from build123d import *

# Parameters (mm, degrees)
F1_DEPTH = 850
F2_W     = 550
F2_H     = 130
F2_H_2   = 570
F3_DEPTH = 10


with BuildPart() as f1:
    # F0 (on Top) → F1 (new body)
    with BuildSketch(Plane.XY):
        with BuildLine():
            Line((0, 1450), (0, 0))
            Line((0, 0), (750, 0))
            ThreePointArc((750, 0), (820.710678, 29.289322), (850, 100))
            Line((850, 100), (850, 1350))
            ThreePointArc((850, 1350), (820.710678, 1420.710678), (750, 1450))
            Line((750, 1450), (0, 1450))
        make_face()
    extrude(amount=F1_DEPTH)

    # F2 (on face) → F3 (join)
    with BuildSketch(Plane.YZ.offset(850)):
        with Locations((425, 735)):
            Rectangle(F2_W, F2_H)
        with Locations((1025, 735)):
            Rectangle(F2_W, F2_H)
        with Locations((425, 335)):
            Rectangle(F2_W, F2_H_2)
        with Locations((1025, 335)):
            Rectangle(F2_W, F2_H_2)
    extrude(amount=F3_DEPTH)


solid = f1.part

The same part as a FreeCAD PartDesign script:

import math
import FreeCAD as App
import Part
import Sketcher

V = App.Vector
Q = App.Units.Quantity

doc = App.newDocument("Part")
params = doc.addObject("Spreadsheet::Sheet", "Params")
for row, (alias, value) in enumerate([
    ("sketch1_radius", "100 mm"),
    ("sketch1_width", "750 mm"),
    ("sketch1_height", "1450 mm"),
    ("pad1_length", "850 mm"),
    ("sketch2_width", "550 mm"),
    ("sketch2_height", "130 mm"),
    ("sketch2_height2", "570 mm"),
    ("pad2_length", "10 mm"),
], start=1):
    params.set(f"A{row}", alias)
    params.set(f"B{row}", "=" + value)
    params.setAlias(f"B{row}", alias)

body = doc.addObject("PartDesign::Body", "Body")

# Sketch on XY plane
sketch1 = body.newObject("Sketcher::SketchObject", "Sketch")
sketch1.AttachmentSupport = (doc.getObject("XY_Plane"), [""])
sketch1.MapMode = "FlatFace"
sketch1.addGeometry(Part.LineSegment(V(0, 1450, 0), V(0, 0, 0)), False)
sketch1.addGeometry(Part.LineSegment(V(0, 0, 0), V(750, 0, 0)), False)
sketch1.addGeometry(Part.ArcOfCircle(Part.Circle(V(750, 100, 0), V(0, 0, 1), 100), math.radians(-90), math.radians(0)), False)
sketch1.addGeometry(Part.LineSegment(V(850, 100, 0), V(850, 1350, 0)), False)
sketch1.addGeometry(Part.ArcOfCircle(Part.Circle(V(750, 1350, 0), V(0, 0, 1), 100), math.radians(0), math.radians(90)), False)
sketch1.addGeometry(Part.LineSegment(V(750, 1450, 0), V(0, 1450, 0)), False)
sketch1.addConstraint(Sketcher.Constraint("Coincident", 0, 2, 1, 1))
sketch1.addConstraint(Sketcher.Constraint("Tangent", 1, 2, 2, 1))
sketch1.addConstraint(Sketcher.Constraint("Tangent", 2, 2, 3, 1))
sketch1.addConstraint(Sketcher.Constraint("Tangent", 3, 2, 4, 1))
sketch1.addConstraint(Sketcher.Constraint("Tangent", 4, 2, 5, 1))
sketch1.addConstraint(Sketcher.Constraint("Coincident", 5, 2, 0, 1))
sketch1.addConstraint(Sketcher.Constraint("Vertical", 0))
sketch1.addConstraint(Sketcher.Constraint("Horizontal", 1))
sketch1.addConstraint(Sketcher.Constraint("Vertical", 3))
sketch1.addConstraint(Sketcher.Constraint("Horizontal", 5))
sketch1.addConstraint(Sketcher.Constraint("Coincident", 0, 2, -1, 1))
sketch1.addConstraint(Sketcher.Constraint("Equal", 2, 4))
sketch1.addConstraint(Sketcher.Constraint("Radius", 2, Q("100 mm")))
sketch1.addConstraint(Sketcher.Constraint("DistanceX", 1, 1, 1, 2, Q("750 mm")))
sketch1.addConstraint(Sketcher.Constraint("DistanceY", 0, 2, 0, 1, Q("1450 mm")))
sketch1.setExpression("Constraints[12]", "Params.sketch1_radius")
sketch1.setExpression("Constraints[13]", "Params.sketch1_width")
sketch1.setExpression("Constraints[14]", "Params.sketch1_height")
pad1 = body.newObject("PartDesign::Pad", "Pad")
pad1.Profile = sketch1
pad1.setExpression("Length", "Params.pad1_length")

# Sketch on YZ plane
sketch2 = body.newObject("Sketcher::SketchObject", "Sketch001")
sketch2.AttachmentSupport = (doc.getObject("YZ_Plane"), [""])
sketch2.MapMode = "FlatFace"
sketch2.AttachmentOffset = App.Placement(V(0, 0, 850), App.Rotation())
sketch2.addGeometry(Part.LineSegment(V(150, 800, 0), V(150, 670, 0)), False)
sketch2.addGeometry(Part.LineSegment(V(150, 670, 0), V(700, 670, 0)), False)
sketch2.addGeometry(Part.LineSegment(V(700, 670, 0), V(700, 800, 0)), False)
sketch2.addGeometry(Part.LineSegment(V(700, 800, 0), V(150, 800, 0)), False)
sketch2.addGeometry(Part.LineSegment(V(750, 800, 0), V(750, 670, 0)), False)
sketch2.addGeometry(Part.LineSegment(V(750, 670, 0), V(1300, 670, 0)), False)
sketch2.addGeometry(Part.LineSegment(V(1300, 670, 0), V(1300, 800, 0)), False)
sketch2.addGeometry(Part.LineSegment(V(1300, 800, 0), V(750, 800, 0)), False)
sketch2.addGeometry(Part.LineSegment(V(150, 620, 0), V(150, 50, 0)), False)
sketch2.addGeometry(Part.LineSegment(V(150, 50, 0), V(700, 50, 0)), False)
sketch2.addGeometry(Part.LineSegment(V(700, 50, 0), V(700, 620, 0)), False)
sketch2.addGeometry(Part.LineSegment(V(700, 620, 0), V(150, 620, 0)), False)
sketch2.addGeometry(Part.LineSegment(V(750, 620, 0), V(750, 50, 0)), False)
sketch2.addGeometry(Part.LineSegment(V(750, 50, 0), V(1300, 50, 0)), False)
sketch2.addGeometry(Part.LineSegment(V(1300, 50, 0), V(1300, 620, 0)), False)
sketch2.addGeometry(Part.LineSegment(V(1300, 620, 0), V(750, 620, 0)), False)
sketch2.addConstraint(Sketcher.Constraint("Coincident", 0, 2, 1, 1))
sketch2.addConstraint(Sketcher.Constraint("Coincident", 1, 2, 2, 1))
sketch2.addConstraint(Sketcher.Constraint("Coincident", 2, 2, 3, 1))
sketch2.addConstraint(Sketcher.Constraint("Coincident", 3, 2, 0, 1))
sketch2.addConstraint(Sketcher.Constraint("Coincident", 4, 2, 5, 1))
sketch2.addConstraint(Sketcher.Constraint("Coincident", 5, 2, 6, 1))
sketch2.addConstraint(Sketcher.Constraint("Coincident", 6, 2, 7, 1))
sketch2.addConstraint(Sketcher.Constraint("Coincident", 7, 2, 4, 1))
sketch2.addConstraint(Sketcher.Constraint("Coincident", 8, 2, 9, 1))
sketch2.addConstraint(Sketcher.Constraint("Coincident", 9, 2, 10, 1))
sketch2.addConstraint(Sketcher.Constraint("Coincident", 10, 2, 11, 1))
sketch2.addConstraint(Sketcher.Constraint("Coincident", 11, 2, 8, 1))
sketch2.addConstraint(Sketcher.Constraint("Coincident", 12, 2, 13, 1))
sketch2.addConstraint(Sketcher.Constraint("Coincident", 13, 2, 14, 1))
sketch2.addConstraint(Sketcher.Constraint("Coincident", 14, 2, 15, 1))
sketch2.addConstraint(Sketcher.Constraint("Coincident", 15, 2, 12, 1))
sketch2.addConstraint(Sketcher.Constraint("Vertical", 0))
sketch2.addConstraint(Sketcher.Constraint("Horizontal", 1))
sketch2.addConstraint(Sketcher.Constraint("Vertical", 2))
sketch2.addConstraint(Sketcher.Constraint("Horizontal", 3))
sketch2.addConstraint(Sketcher.Constraint("Vertical", 4))
sketch2.addConstraint(Sketcher.Constraint("Horizontal", 5))
sketch2.addConstraint(Sketcher.Constraint("Vertical", 6))
sketch2.addConstraint(Sketcher.Constraint("Horizontal", 7))
sketch2.addConstraint(Sketcher.Constraint("Vertical", 8))
sketch2.addConstraint(Sketcher.Constraint("Horizontal", 9))
sketch2.addConstraint(Sketcher.Constraint("Vertical", 10))
sketch2.addConstraint(Sketcher.Constraint("Horizontal", 11))
sketch2.addConstraint(Sketcher.Constraint("Vertical", 12))
sketch2.addConstraint(Sketcher.Constraint("Horizontal", 13))
sketch2.addConstraint(Sketcher.Constraint("Vertical", 14))
sketch2.addConstraint(Sketcher.Constraint("Horizontal", 15))
sketch2.addConstraint(Sketcher.Constraint("Horizontal", 1, 2, 4, 2))
sketch2.addConstraint(Sketcher.Constraint("Horizontal", 3, 2, 6, 2))
sketch2.addConstraint(Sketcher.Constraint("Horizontal", 9, 2, 12, 2))
sketch2.addConstraint(Sketcher.Constraint("Horizontal", 11, 2, 14, 2))
sketch2.addConstraint(Sketcher.Constraint("Vertical", 3, 2, 8, 2))
sketch2.addConstraint(Sketcher.Constraint("Vertical", 2, 2, 9, 2))
sketch2.addConstraint(Sketcher.Constraint("Vertical", 7, 2, 12, 2))
sketch2.addConstraint(Sketcher.Constraint("Vertical", 6, 2, 13, 2))
sketch2.addConstraint(Sketcher.Constraint("Equal", 3, 5))
sketch2.addConstraint(Sketcher.Constraint("DistanceX", 1, 1, 1, 2, Q("550 mm")))
sketch2.addConstraint(Sketcher.Constraint("DistanceY", 0, 2, 0, 1, Q("130 mm")))
sketch2.addConstraint(Sketcher.Constraint("DistanceY", 8, 2, 8, 1, Q("570 mm")))
sketch2.addConstraint(Sketcher.Constraint("DistanceX", -1, 1, 0, 2, Q("150 mm")))
sketch2.addConstraint(Sketcher.Constraint("DistanceY", -1, 1, 0, 2, Q("670 mm")))
sketch2.addConstraint(Sketcher.Constraint("DistanceX", -1, 1, 4, 2, Q("750 mm")))
sketch2.addConstraint(Sketcher.Constraint("DistanceY", -1, 1, 8, 2, Q("50 mm")))
sketch2.setExpression("Constraints[41]", "Params.sketch2_width")
sketch2.setExpression("Constraints[42]", "Params.sketch2_height")
sketch2.setExpression("Constraints[43]", "Params.sketch2_height2")
pad2 = body.newObject("PartDesign::Pad", "Pad001")
pad2.Profile = sketch2
pad2.setExpression("Length", "Params.pad2_length")

doc.recompute()
